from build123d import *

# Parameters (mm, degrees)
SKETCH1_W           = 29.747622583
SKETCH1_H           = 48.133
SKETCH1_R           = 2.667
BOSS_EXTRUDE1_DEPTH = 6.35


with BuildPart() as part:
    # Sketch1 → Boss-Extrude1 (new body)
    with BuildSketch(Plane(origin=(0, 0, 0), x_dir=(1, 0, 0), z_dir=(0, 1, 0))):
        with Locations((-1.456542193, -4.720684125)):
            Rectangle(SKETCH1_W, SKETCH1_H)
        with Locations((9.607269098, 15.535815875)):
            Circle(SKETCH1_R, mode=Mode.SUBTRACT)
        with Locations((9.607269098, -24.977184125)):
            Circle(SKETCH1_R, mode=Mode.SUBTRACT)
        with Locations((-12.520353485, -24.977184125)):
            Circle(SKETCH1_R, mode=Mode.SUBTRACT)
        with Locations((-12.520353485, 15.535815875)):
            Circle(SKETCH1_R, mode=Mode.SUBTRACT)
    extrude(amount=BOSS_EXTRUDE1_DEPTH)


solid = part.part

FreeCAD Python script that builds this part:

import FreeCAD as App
import Part
import Sketcher
Q = App.Units.Quantity

doc = App.newDocument("Part")
body = doc.addObject("PartDesign::Body", "Body")

sketch1 = doc.addObject("Sketcher::SketchObject", "Sketch")
body.addObject(sketch1)
sketch1.AttachmentSupport = (doc.XZ_Plane, [""])
sketch1.MapMode = "FlatFace"
sketch1.addGeometry(Part.LineSegment(App.Vector(-16.330353, -19.345816, 0), App.Vector(-16.330353, 28.787184, 0)), False)
sketch1.addGeometry(Part.LineSegment(App.Vector(-16.330353, 28.787184, 0), App.Vector(13.417269, 28.787184, 0)), False)
sketch1.addGeometry(Part.LineSegment(App.Vector(13.417269, 28.787184, 0), App.Vector(13.417269, -19.345816, 0)), False)
sketch1.addGeometry(Part.LineSegment(App.Vector(13.417269, -19.345816, 0), App.Vector(-16.330353, -19.345816, 0)), False)
sketch1.addGeometry(Part.Circle(App.Vector(-12.520353, 24.977184, 0), App.Vector(0, 0, 1), 2.667), False)
sketch1.addGeometry(Part.Circle(App.Vector(9.607269, 24.977184, 0), App.Vector(0, 0, 1), 2.667), False)
sketch1.addGeometry(Part.Circle(App.Vector(-12.520353, -15.535816, 0), App.Vector(0, 0, 1), 2.667), False)
sketch1.addGeometry(Part.Circle(App.Vector(9.607269, -15.535816, 0), App.Vector(0, 0, 1), 2.667), False)
sketch1.addConstraint(Sketcher.Constraint("Coincident", 0, 2, 1, 1))
sketch1.addConstraint(Sketcher.Constraint("Coincident", 1, 2, 2, 1))
sketch1.addConstraint(Sketcher.Constraint("Coincident", 2, 2, 3, 1))
sketch1.addConstraint(Sketcher.Constraint("Coincident", 3, 2, 0, 1))
sketch1.addConstraint(Sketcher.Constraint("Vertical", 0))
sketch1.addConstraint(Sketcher.Constraint("Horizontal", 1))
sketch1.addConstraint(Sketcher.Constraint("Vertical", 2))
sketch1.addConstraint(Sketcher.Constraint("Horizontal", 3))
sketch1.addConstraint(Sketcher.Constraint("Equal", 4, 5))
sketch1.addConstraint(Sketcher.Constraint("Equal", 5, 6))
sketch1.addConstraint(Sketcher.Constraint("Equal", 6, 7))
sketch1.addConstraint(Sketcher.Constraint("Horizontal", 4, 3, 5, 3))
sketch1.addConstraint(Sketcher.Constraint("Horizontal", 6, 3, 7, 3))
sketch1.addConstraint(Sketcher.Constraint("Vertical", 4, 3, 6, 3))
sketch1.addConstraint(Sketcher.Constraint("Vertical", 5, 3, 7, 3))
sketch1.addConstraint(Sketcher.Constraint("Diameter", 4, Q("0.21 in")))
sketch1.addConstraint(Sketcher.Constraint("DistanceY", 0, 1, 0, 2, Q("1.895 in")))
sketch1.addConstraint(Sketcher.Constraint("DistanceX", 0, 2, 4, 3, Q("0.15 in")))
sketch1.addConstraint(Sketcher.Constraint("DistanceY", 4, 3, 0, 2, Q("0.15 in")))
sketch1.addConstraint(Sketcher.Constraint("DistanceX", 5, 3, 1, 2, Q("0.15 in")))
sketch1.addConstraint(Sketcher.Constraint("DistanceY", 2, 2, 7, 3, Q("0.15 in")))
sketch1.addConstraint(Sketcher.Constraint("DistanceX", 1, 1, 1, 2, 29.747623))
sketch1.addConstraint(Sketcher.Constraint("DistanceX", -1, 1, 5, 3, 9.607269))
sketch1.addConstraint(Sketcher.Constraint("DistanceY", -1, 1, 4, 3, 24.977184))
pad1 = doc.addObject("PartDesign::Pad", "Pad")
body.addObject(pad1)
pad1.Profile = sketch1
pad1.Length = Q("0.25 in")
pad1.Reversed = True

doc.recompute()
